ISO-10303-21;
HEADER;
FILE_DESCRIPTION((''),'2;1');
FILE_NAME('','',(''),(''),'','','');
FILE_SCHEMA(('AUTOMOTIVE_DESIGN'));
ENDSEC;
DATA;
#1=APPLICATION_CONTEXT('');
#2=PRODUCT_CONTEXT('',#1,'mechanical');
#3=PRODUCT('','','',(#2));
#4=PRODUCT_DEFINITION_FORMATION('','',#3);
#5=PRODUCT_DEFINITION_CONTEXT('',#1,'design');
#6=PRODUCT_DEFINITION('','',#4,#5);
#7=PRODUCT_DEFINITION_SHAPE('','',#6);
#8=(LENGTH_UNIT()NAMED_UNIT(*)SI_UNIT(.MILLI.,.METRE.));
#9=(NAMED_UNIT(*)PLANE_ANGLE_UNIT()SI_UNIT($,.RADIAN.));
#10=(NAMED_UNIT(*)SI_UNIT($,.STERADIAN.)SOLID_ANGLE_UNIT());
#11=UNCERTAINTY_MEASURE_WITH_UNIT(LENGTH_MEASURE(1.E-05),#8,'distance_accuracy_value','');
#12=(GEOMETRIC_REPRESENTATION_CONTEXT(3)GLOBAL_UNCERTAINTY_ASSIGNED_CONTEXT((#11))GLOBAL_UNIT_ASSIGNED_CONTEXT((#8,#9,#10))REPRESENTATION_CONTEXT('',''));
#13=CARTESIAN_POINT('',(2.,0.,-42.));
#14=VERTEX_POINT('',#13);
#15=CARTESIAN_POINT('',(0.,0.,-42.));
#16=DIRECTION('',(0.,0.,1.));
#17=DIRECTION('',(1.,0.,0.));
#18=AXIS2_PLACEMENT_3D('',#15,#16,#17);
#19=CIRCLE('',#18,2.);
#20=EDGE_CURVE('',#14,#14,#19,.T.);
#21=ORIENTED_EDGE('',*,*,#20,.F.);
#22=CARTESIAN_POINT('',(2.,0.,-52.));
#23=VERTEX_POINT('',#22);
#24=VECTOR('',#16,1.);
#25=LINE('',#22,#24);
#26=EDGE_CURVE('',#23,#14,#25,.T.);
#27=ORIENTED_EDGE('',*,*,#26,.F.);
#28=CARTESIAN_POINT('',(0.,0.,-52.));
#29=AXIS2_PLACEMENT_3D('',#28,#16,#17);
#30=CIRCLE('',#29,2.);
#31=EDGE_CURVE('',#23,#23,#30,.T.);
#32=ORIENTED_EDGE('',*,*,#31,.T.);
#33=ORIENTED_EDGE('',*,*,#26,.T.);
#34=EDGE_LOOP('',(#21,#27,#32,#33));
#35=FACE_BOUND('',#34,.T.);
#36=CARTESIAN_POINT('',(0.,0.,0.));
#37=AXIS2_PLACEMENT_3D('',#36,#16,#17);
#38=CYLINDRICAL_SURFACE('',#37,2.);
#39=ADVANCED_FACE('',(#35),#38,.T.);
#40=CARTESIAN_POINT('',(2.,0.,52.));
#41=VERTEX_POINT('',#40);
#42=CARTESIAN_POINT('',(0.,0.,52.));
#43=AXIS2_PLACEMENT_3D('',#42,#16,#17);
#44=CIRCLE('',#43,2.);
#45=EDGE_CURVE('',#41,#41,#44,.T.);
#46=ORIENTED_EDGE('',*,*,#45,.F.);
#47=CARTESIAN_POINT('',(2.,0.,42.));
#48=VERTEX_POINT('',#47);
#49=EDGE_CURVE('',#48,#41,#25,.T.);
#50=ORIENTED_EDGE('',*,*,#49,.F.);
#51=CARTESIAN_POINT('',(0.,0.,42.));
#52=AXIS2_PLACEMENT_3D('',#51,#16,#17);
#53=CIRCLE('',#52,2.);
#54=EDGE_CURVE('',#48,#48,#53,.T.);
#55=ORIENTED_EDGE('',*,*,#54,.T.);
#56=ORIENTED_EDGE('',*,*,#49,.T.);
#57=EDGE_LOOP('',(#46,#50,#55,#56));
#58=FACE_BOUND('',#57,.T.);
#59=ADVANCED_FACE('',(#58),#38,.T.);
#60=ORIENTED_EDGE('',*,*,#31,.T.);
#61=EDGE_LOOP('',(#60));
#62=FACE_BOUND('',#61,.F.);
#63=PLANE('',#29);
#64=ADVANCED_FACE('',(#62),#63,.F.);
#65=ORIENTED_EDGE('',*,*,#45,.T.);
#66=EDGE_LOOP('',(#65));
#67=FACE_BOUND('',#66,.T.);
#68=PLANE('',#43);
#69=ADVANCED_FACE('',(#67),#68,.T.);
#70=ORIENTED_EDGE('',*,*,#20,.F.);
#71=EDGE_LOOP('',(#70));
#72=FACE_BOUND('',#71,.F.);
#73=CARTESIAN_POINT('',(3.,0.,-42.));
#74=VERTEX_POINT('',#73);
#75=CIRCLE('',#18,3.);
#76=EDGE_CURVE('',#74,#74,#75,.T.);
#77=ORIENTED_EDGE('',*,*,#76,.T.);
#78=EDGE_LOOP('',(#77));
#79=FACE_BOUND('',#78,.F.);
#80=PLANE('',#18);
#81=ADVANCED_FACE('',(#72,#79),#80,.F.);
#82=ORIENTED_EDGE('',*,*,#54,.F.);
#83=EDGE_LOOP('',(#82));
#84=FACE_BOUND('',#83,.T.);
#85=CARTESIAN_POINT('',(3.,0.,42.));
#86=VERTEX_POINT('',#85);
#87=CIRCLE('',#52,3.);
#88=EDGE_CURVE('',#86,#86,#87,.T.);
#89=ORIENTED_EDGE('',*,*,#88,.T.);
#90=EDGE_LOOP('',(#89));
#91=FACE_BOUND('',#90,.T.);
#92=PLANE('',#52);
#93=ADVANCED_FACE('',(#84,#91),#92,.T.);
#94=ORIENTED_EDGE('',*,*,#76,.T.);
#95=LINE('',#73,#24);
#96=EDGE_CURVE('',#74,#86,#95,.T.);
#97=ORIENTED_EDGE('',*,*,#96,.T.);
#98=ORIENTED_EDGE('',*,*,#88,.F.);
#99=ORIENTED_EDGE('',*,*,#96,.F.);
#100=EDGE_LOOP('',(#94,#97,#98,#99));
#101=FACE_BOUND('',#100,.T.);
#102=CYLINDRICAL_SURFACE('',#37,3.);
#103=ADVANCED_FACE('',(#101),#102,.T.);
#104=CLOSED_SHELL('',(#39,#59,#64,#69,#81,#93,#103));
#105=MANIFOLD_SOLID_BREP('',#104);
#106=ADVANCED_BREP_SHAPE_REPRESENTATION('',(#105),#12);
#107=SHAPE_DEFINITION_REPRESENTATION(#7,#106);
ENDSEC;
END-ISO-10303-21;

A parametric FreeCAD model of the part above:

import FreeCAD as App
import Part
import Sketcher
from FreeCAD import Vector
Q = App.Units.Quantity

doc = App.newDocument("Part")
body = doc.addObject("PartDesign::Body", "Body")

sketch1 = body.newObject("Sketcher::SketchObject", "Sketch")
sketch1.AttachmentSupport = (doc.getObject("XY_Plane"), [""])
sketch1.MapMode = "FlatFace"
sketch1.addGeometry(Part.Circle(Vector(0, 0, 0), Vector(0, 0, 1), 3), False)
sketch1.addConstraint(Sketcher.Constraint("Coincident", 0, 3, -1, 1))
sketch1.addConstraint(Sketcher.Constraint("Diameter", 0, Q("6 mm")))
pad1 = body.newObject("PartDesign::Pad", "Pad")
pad1.Profile = sketch1
pad1.Length = 84
pad1.Midplane = True

sketch2 = body.newObject("Sketcher::SketchObject", "Sketch001")
sketch2.AttachmentSupport = (doc.getObject("XY_Plane"), [""])
sketch2.MapMode = "FlatFace"
sketch2.addGeometry(Part.Circle(Vector(0, 0, 0), Vector(0, 0, 1), 2), False)
sketch2.addConstraint(Sketcher.Constraint("Coincident", 0, 3, -1, 1))
sketch2.addConstraint(Sketcher.Constraint("Diameter", 0, Q("4 mm")))
pad2 = body.newObject("PartDesign::Pad", "Pad001")
pad2.Profile = sketch2
pad2.Length = 104
pad2.Midplane = True

doc.recompute()
